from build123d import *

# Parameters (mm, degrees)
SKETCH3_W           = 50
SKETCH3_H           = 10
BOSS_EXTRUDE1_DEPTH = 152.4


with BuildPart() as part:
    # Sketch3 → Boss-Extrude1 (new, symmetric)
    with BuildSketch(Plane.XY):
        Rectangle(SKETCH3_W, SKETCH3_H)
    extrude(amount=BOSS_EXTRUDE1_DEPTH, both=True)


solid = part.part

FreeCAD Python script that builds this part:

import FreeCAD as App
import Part
import Sketcher
Q = App.Units.Quantity


def add_polygon(sketch, points):
    """Adds a closed chain of lines whose ends are joined by coincident constraints."""
    first, n = sketch.GeometryCount, len(points)
    for a, b in zip(points, points[1:] + points[:1]):
        sketch.addGeometry(Part.LineSegment(App.Vector(*a, 0), App.Vector(*b, 0)), False)
    for i in range(n):
        sketch.addConstraint(Sketcher.Constraint("Coincident", first + i, 2, first + (i + 1) % n, 1))

doc = App.newDocument("Part")
body = doc.addObject("PartDesign::Body", "Body")

# Sketch on XY plane
sketch1 = doc.addObject("Sketcher::SketchObject", "Sketch")
body.addObject(sketch1)
sketch1.AttachmentSupport = (doc.XY_Plane, [""])
sketch1.MapMode = "FlatFace"
add_polygon(sketch1, [(-25, 5), (-25, -5), (25, -5), (25, 5)])  # lines 0-3
sketch1.addConstraint(Sketcher.Constraint("Vertical", 0))
sketch1.addConstraint(Sketcher.Constraint("Horizontal", 1))
sketch1.addConstraint(Sketcher.Constraint("Vertical", 2))
sketch1.addConstraint(Sketcher.Constraint("Horizontal", 3))
sketch1.addConstraint(Sketcher.Constraint("Symmetric", 0, 2, 2, 2, -1, 1))
sketch1.addConstraint(Sketcher.Constraint("DistanceX", 1, 1, 1, 2, Q("50 mm")))
sketch1.addConstraint(Sketcher.Constraint("DistanceY", 0, 2, 0, 1, Q("10 mm")))
pad1 = doc.addObject("PartDesign::Pad", "Pad")
body.addObject(pad1)
pad1.Profile = sketch1
pad1.Length = 304.8
pad1.Midplane = True

doc.recompute()
